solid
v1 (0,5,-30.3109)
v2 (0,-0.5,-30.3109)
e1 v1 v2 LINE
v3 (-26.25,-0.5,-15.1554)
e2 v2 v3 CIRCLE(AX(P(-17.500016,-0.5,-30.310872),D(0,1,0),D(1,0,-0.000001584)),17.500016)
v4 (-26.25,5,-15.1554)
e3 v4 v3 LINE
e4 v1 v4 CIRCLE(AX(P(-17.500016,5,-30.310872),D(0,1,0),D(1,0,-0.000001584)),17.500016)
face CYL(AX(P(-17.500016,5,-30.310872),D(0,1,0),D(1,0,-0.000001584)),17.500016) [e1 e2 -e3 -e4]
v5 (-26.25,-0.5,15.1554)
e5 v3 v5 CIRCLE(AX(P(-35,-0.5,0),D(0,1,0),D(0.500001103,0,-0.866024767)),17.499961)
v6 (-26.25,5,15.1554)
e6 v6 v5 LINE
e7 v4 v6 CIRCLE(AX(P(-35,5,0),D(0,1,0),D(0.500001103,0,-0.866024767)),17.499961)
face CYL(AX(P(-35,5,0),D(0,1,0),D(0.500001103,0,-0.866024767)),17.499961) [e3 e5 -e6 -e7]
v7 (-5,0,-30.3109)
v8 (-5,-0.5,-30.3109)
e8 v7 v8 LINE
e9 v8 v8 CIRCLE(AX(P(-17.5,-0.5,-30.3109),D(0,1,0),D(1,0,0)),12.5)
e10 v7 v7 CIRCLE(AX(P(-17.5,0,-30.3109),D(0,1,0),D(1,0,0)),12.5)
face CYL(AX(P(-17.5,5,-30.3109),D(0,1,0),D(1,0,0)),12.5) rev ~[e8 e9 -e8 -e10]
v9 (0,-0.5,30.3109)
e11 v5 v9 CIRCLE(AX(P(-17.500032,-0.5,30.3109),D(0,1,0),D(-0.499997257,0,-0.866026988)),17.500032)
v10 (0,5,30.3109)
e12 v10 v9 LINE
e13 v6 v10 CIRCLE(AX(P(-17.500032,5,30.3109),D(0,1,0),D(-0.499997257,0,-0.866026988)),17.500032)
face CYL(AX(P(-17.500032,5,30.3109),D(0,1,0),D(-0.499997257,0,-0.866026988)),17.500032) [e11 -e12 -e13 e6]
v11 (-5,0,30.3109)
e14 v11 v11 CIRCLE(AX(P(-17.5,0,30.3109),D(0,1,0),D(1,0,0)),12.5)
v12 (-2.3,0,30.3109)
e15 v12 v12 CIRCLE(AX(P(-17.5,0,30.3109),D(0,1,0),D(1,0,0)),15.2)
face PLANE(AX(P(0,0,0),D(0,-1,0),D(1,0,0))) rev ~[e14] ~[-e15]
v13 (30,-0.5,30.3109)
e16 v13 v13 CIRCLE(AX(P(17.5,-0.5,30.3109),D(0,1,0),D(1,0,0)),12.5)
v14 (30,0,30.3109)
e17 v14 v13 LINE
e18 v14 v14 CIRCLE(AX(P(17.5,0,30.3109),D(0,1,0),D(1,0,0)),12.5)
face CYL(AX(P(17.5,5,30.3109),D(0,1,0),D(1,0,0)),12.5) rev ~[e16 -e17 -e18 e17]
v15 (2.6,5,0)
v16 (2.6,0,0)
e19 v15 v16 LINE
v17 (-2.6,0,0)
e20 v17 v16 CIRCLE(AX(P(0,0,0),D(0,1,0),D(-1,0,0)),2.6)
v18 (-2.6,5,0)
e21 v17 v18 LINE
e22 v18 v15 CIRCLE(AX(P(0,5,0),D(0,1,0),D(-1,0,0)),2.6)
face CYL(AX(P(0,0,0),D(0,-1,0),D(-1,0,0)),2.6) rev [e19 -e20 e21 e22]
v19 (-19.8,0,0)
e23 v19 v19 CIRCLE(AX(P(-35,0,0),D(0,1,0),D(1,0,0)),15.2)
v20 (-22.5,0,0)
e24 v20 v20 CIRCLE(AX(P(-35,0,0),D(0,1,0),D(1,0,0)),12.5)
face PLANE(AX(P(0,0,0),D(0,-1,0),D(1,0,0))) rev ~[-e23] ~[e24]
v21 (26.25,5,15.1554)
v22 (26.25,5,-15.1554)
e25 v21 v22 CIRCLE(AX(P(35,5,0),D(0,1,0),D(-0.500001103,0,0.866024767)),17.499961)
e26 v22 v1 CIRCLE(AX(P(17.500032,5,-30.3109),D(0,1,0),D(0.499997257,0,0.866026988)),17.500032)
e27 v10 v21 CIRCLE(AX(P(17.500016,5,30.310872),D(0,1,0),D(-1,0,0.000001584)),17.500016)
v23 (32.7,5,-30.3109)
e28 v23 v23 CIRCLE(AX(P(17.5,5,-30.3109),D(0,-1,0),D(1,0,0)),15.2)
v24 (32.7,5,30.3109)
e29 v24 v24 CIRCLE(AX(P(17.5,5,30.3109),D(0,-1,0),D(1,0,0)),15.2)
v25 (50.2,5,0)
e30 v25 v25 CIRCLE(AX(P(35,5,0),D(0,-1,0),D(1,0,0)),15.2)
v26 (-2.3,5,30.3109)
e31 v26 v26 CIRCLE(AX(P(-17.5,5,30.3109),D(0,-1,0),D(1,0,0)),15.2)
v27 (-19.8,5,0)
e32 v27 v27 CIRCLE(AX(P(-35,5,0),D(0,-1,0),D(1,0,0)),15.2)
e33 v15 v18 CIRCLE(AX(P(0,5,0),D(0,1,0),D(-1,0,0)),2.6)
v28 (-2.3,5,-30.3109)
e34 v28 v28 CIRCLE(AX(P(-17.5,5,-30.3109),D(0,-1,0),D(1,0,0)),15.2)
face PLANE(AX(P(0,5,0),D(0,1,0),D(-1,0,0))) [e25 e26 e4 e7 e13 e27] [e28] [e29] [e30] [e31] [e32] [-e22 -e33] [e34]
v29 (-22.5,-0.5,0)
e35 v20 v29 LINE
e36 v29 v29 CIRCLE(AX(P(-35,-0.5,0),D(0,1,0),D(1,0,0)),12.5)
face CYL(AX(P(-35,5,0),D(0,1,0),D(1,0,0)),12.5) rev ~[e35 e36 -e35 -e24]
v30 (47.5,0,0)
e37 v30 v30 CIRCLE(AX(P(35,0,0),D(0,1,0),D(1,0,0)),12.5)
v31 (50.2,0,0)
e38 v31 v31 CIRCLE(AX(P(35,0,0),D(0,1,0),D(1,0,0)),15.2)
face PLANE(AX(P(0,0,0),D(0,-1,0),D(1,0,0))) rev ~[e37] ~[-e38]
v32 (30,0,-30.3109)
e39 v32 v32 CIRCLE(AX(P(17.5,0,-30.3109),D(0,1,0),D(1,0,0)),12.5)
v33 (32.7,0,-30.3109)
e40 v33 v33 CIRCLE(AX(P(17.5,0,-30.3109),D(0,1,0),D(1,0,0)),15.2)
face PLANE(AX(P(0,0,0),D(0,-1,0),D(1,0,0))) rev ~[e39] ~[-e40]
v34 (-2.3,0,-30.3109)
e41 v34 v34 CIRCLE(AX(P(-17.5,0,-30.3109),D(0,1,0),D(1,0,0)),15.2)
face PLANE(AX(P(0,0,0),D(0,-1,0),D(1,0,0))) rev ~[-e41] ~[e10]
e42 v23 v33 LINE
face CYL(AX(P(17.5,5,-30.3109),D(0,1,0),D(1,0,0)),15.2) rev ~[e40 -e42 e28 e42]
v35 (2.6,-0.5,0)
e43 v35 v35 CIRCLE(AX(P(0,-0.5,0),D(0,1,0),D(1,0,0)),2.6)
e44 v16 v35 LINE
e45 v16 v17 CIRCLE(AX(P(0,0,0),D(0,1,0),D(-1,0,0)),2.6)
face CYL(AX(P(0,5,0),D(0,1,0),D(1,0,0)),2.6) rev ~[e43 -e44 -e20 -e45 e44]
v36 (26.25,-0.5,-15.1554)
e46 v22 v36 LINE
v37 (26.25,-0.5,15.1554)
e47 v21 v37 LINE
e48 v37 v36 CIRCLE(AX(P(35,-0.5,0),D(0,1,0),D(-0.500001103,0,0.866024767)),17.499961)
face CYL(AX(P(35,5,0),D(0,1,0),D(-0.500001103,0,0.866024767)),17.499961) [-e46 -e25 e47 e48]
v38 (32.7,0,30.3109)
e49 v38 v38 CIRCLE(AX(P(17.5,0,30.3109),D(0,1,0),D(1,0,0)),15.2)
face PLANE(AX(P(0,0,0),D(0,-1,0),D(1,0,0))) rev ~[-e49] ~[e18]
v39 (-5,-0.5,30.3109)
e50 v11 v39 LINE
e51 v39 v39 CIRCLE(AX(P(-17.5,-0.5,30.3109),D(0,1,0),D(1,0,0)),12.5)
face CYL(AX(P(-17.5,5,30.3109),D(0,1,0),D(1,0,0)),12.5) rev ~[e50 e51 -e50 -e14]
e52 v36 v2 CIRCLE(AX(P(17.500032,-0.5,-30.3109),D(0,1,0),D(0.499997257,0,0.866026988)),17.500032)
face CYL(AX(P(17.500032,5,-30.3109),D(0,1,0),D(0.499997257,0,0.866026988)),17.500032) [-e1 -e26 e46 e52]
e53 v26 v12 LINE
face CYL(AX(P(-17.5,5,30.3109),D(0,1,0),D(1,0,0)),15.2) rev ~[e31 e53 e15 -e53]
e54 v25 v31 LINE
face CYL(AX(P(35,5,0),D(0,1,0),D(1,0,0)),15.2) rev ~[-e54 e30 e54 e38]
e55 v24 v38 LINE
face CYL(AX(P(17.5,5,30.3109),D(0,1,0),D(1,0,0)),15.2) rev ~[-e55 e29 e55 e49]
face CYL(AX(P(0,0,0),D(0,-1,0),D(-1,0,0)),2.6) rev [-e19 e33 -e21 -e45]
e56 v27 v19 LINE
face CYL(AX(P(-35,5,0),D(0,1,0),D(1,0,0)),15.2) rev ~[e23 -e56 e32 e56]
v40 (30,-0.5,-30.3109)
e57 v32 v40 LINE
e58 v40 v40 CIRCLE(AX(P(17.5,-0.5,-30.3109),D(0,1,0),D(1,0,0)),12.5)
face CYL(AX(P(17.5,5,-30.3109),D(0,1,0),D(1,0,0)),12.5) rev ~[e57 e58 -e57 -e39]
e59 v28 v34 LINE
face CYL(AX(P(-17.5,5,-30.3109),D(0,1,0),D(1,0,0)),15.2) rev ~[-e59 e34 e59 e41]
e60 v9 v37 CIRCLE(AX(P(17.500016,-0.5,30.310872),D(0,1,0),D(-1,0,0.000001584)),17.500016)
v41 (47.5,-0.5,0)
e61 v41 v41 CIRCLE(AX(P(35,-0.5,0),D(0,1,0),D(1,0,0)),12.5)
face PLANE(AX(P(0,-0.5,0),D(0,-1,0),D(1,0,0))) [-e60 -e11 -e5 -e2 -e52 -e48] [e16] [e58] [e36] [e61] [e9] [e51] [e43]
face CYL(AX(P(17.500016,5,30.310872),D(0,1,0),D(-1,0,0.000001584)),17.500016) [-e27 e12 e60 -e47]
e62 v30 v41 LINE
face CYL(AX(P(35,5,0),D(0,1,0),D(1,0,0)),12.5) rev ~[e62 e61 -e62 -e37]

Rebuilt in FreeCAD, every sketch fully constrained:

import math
import FreeCAD as App
import Part
import Sketcher
from FreeCAD import Vector
Q = App.Units.Quantity

doc = App.newDocument("Part")
body = doc.addObject("PartDesign::Body", "Body")

# Sketch on XZ plane
sketch1 = body.newObject("Sketcher::SketchObject", "Sketch")
sketch1.AttachmentSupport = (doc.getObject("XZ_Plane"), [""])
sketch1.MapMode = "FlatFace"
sketch1.addGeometry([
    Part.Circle(Vector(0, 0, 0), Vector(0, 0, 1), 55),
    Part.Circle(Vector(0, 0, 0), Vector(0, 0, 1), 2.6),
], False)
sketch1.addConstraint([
    Sketcher.Constraint("Coincident", 0, 3, -1, 1),
    Sketcher.Constraint("Coincident", 1, 3, -1, 1),
    Sketcher.Constraint("Diameter", 0, Q("110 mm")),
    Sketcher.Constraint("Diameter", 1, Q("5.2 mm")),
])
pad1 = body.newObject("PartDesign::Pad", "Pad")
pad1.Profile = sketch1
pad1.Length = 5
pad1.Reversed = True

# Sketch on XZ plane
sketch2 = body.newObject("Sketcher::SketchObject", "Sketch001")
sketch2.AttachmentSupport = (doc.getObject("XZ_Plane"), [""])
sketch2.MapMode = "FlatFace"
sketch2.AttachmentOffset = App.Placement(Vector(0, 0, -5), App.Rotation())
sketch2.addGeometry([
    Part.Circle(Vector(35, 0, 0), Vector(0, 0, 1), 15.2),  # 0
    Part.Circle(Vector(17.5, -30.3109, 0), Vector(0, 0, 1), 15.2),  # 1
    Part.Circle(Vector(17.5, 30.3109, 0), Vector(0, 0, 1), 15.2),  # 2
    Part.Circle(Vector(-17.5, -30.3109, 0), Vector(0, 0, 1), 15.2),  # 3
    Part.Circle(Vector(-17.5, 30.3109, 0), Vector(0, 0, 1), 15.2),  # 4
    Part.Circle(Vector(-35, 0, 0), Vector(0, 0, 1), 15.2),  # 5
], False)
sketch2.addConstraint([
    Sketcher.Constraint("Equal", 0, 1),
    Sketcher.Constraint("Equal", 1, 2),
    Sketcher.Constraint("Equal", 2, 3),
    Sketcher.Constraint("Equal", 3, 4),
    Sketcher.Constraint("Equal", 4, 5),
    Sketcher.Constraint("Symmetric", 2, 3, 3, 3, -1, 1),
    Sketcher.Constraint("Symmetric", 1, 3, 4, 3, -1, 1),
    Sketcher.Constraint("Symmetric", 0, 3, 5, 3, -1, 1),
    Sketcher.Constraint("Symmetric", 1, 3, 3, 3, -2),
    Sketcher.Constraint("PointOnObject", 0, 3, -1),
    Sketcher.Constraint("Diameter", 0, Q("30.4 mm")),
    Sketcher.Constraint("DistanceX", 5, 3, 0, 3, Q("70 mm")),
    Sketcher.Constraint("DistanceX", 3, 3, 1, 3, Q("35 mm")),
    Sketcher.Constraint("DistanceY", 1, 3, -1, 1, Q("30.311 mm")),
])
pocket1 = body.newObject("PartDesign::Pocket", "Pocket")
pocket1.Profile = sketch2
pocket1.Length = 5
pocket1.Reversed = True

# Sketch on XZ plane
sketch3 = body.newObject("Sketcher::SketchObject", "Sketch002")
sketch3.AttachmentSupport = (doc.getObject("XZ_Plane"), [""])
sketch3.MapMode = "FlatFace"
sketch3.addGeometry(Part.Circle(Vector(0, 0, 0), Vector(0, 0, 1), 55), False)
sketch3.addConstraint([
    Sketcher.Constraint("Coincident", 0, 3, -1, 1),
    Sketcher.Constraint("Diameter", 0, Q("110 mm")),
])
pad2 = body.newObject("PartDesign::Pad", "Pad001")
pad2.Profile = sketch3
pad2.Length = 0.5

# Sketch on XZ plane
sketch4 = body.newObject("Sketcher::SketchObject", "Sketch003")
sketch4.AttachmentSupport = (doc.getObject("XZ_Plane"), [""])
sketch4.MapMode = "FlatFace"
sketch4.AttachmentOffset = App.Placement(Vector(0, 0, -5), App.Rotation())
sketch4.addGeometry([
    Part.Circle(Vector(-35, 0, 0), Vector(0, 0, 1), 12.5),  # 0
    Part.Circle(Vector(-17.5, 30.3109, 0), Vector(0, 0, 1), 12.5),  # 1
    Part.Circle(Vector(17.5, 30.3109, 0), Vector(0, 0, 1), 12.5),  # 2
    Part.Circle(Vector(35, 0, 0), Vector(0, 0, 1), 12.5),  # 3
    Part.Circle(Vector(17.5, -30.3109, 0), Vector(0, 0, 1), 12.5),  # 4
    Part.Circle(Vector(-17.5, -30.3109, 0), Vector(0, 0, 1), 12.5),  # 5
], False)
sketch4.addConstraint([
    Sketcher.Constraint("Equal", 0, 1),
    Sketcher.Constraint("Equal", 1, 2),
    Sketcher.Constraint("Equal", 2, 3),
    Sketcher.Constraint("Equal", 3, 4),
    Sketcher.Constraint("Equal", 4, 5),
    Sketcher.Constraint("Symmetric", 0, 3, 3, 3, -1, 1),
    Sketcher.Constraint("Symmetric", 1, 3, 4, 3, -1, 1),
    Sketcher.Constraint("Symmetric", 2, 3, 5, 3, -1, 1),
    Sketcher.Constraint("Symmetric", 1, 3, 2, 3, -2),
    Sketcher.Constraint("PointOnObject", 0, 3, -1),
    Sketcher.Constraint("Diameter", 0, Q("25 mm")),
    Sketcher.Constraint("DistanceX", 0, 3, -1, 1, Q("35 mm")),
    Sketcher.Constraint("DistanceX", 1, 3, 2, 3, Q("35 mm")),
    Sketcher.Constraint("DistanceY", -1, 1, 1, 3, Q("30.311 mm")),
])
pocket2 = body.newObject("PartDesign::Pocket", "Pocket001")
pocket2.Profile = sketch4
pocket2.Length = 86.25
pocket2.Reversed = True

# Sketch on XZ plane
sketch5 = body.newObject("Sketcher::SketchObject", "Sketch004")
sketch5.AttachmentSupport = (doc.getObject("XZ_Plane"), [""])
sketch5.MapMode = "FlatFace"
sketch5.AttachmentOffset = App.Placement(Vector(0, 0, -5), App.Rotation())
sketch5.addGeometry(Part.Circle(Vector(0, 0, 0), Vector(0, 0, 1), 2.6), False)
sketch5.addConstraint([
    Sketcher.Constraint("Coincident", 0, 3, -1, 1),
    Sketcher.Constraint("Diameter", 0, Q("5.2 mm")),
])
pocket3 = body.newObject("PartDesign::Pocket", "Pocket002")
pocket3.Profile = sketch5
pocket3.Length = 86.25
pocket3.Reversed = True

# Sketch on XZ plane
sketch6 = body.newObject("Sketcher::SketchObject", "Sketch005")
sketch6.AttachmentSupport = (doc.getObject("XZ_Plane"), [""])
sketch6.MapMode = "FlatFace"
sketch6.AttachmentOffset = App.Placement(Vector(0, 0, -5), App.Rotation())
sketch6.addGeometry([
    Part.Circle(Vector(0, 0, 0), Vector(0, 0, 1), 65.8368),  # 0
    Part.ArcOfCircle(Part.Circle(Vector(17.5, -30.3109, 0), Vector(0, 0, 1), 17.500048), math.radians(180), math.radians(420.000091)),  # 1
    Part.ArcOfCircle(Part.Circle(Vector(35, 0, 0), Vector(0, 0, 1), 17.499961), math.radians(-120.000073), math.radians(120.000073)),  # 2
    Part.ArcOfCircle(Part.Circle(Vector(17.5, 30.3109, 0), Vector(0, 0, 1), 17.5), math.radians(-60.000091), math.radians(180)),  # 3
    Part.ArcOfCircle(Part.Circle(Vector(-17.5, 30.3109, 0), Vector(0, 0, 1), 17.500048), math.radians(0), math.radians(240.000091)),  # 4
    Part.ArcOfCircle(Part.Circle(Vector(-35, 0, 0), Vector(0, 0, 1), 17.499961), math.radians(59.999927), math.radians(300.000073)),  # 5
    Part.ArcOfCircle(Part.Circle(Vector(-17.5, -30.3109, 0), Vector(0, 0, 1), 17.5), math.radians(119.999909), math.radians(360)),  # 6
], False)
sketch6.addConstraint([
    Sketcher.Constraint("Tangent", 1, 2, 2, 1),
    Sketcher.Constraint("Tangent", 2, 2, 3, 1),
    Sketcher.Constraint("Tangent", 3, 2, 4, 1),
    Sketcher.Constraint("Tangent", 4, 2, 5, 1),
    Sketcher.Constraint("Tangent", 5, 2, 6, 1),
    Sketcher.Constraint("Tangent", 6, 2, 1, 1),
    Sketcher.Constraint("Coincident", 0, 3, -1, 1),
    Sketcher.Constraint("Equal", 1, 2),
    Sketcher.Constraint("Equal", 2, 3),
    Sketcher.Constraint("Equal", 3, 4),
    Sketcher.Constraint("Equal", 4, 5),
    Sketcher.Constraint("Equal", 5, 6),
    Sketcher.Constraint("Symmetric", 1, 3, 4, 3, -1, 1),
    Sketcher.Constraint("Symmetric", 3, 3, 4, 3, -2),
    Sketcher.Constraint("PointOnObject", 5, 3, -1),
    Sketcher.Constraint("Radius", 1, Q("17.5 mm")),
    Sketcher.Constraint("DistanceX", -1, 1, 2, 3, Q("35 mm")),
    Sketcher.Constraint("Diameter", 0, Q("131.6736 mm")),
])
pocket4 = body.newObject("PartDesign::Pocket", "Pocket003")
pocket4.Profile = sketch6
pocket4.Length = 86.25
pocket4.Reversed = True

doc.recompute()
